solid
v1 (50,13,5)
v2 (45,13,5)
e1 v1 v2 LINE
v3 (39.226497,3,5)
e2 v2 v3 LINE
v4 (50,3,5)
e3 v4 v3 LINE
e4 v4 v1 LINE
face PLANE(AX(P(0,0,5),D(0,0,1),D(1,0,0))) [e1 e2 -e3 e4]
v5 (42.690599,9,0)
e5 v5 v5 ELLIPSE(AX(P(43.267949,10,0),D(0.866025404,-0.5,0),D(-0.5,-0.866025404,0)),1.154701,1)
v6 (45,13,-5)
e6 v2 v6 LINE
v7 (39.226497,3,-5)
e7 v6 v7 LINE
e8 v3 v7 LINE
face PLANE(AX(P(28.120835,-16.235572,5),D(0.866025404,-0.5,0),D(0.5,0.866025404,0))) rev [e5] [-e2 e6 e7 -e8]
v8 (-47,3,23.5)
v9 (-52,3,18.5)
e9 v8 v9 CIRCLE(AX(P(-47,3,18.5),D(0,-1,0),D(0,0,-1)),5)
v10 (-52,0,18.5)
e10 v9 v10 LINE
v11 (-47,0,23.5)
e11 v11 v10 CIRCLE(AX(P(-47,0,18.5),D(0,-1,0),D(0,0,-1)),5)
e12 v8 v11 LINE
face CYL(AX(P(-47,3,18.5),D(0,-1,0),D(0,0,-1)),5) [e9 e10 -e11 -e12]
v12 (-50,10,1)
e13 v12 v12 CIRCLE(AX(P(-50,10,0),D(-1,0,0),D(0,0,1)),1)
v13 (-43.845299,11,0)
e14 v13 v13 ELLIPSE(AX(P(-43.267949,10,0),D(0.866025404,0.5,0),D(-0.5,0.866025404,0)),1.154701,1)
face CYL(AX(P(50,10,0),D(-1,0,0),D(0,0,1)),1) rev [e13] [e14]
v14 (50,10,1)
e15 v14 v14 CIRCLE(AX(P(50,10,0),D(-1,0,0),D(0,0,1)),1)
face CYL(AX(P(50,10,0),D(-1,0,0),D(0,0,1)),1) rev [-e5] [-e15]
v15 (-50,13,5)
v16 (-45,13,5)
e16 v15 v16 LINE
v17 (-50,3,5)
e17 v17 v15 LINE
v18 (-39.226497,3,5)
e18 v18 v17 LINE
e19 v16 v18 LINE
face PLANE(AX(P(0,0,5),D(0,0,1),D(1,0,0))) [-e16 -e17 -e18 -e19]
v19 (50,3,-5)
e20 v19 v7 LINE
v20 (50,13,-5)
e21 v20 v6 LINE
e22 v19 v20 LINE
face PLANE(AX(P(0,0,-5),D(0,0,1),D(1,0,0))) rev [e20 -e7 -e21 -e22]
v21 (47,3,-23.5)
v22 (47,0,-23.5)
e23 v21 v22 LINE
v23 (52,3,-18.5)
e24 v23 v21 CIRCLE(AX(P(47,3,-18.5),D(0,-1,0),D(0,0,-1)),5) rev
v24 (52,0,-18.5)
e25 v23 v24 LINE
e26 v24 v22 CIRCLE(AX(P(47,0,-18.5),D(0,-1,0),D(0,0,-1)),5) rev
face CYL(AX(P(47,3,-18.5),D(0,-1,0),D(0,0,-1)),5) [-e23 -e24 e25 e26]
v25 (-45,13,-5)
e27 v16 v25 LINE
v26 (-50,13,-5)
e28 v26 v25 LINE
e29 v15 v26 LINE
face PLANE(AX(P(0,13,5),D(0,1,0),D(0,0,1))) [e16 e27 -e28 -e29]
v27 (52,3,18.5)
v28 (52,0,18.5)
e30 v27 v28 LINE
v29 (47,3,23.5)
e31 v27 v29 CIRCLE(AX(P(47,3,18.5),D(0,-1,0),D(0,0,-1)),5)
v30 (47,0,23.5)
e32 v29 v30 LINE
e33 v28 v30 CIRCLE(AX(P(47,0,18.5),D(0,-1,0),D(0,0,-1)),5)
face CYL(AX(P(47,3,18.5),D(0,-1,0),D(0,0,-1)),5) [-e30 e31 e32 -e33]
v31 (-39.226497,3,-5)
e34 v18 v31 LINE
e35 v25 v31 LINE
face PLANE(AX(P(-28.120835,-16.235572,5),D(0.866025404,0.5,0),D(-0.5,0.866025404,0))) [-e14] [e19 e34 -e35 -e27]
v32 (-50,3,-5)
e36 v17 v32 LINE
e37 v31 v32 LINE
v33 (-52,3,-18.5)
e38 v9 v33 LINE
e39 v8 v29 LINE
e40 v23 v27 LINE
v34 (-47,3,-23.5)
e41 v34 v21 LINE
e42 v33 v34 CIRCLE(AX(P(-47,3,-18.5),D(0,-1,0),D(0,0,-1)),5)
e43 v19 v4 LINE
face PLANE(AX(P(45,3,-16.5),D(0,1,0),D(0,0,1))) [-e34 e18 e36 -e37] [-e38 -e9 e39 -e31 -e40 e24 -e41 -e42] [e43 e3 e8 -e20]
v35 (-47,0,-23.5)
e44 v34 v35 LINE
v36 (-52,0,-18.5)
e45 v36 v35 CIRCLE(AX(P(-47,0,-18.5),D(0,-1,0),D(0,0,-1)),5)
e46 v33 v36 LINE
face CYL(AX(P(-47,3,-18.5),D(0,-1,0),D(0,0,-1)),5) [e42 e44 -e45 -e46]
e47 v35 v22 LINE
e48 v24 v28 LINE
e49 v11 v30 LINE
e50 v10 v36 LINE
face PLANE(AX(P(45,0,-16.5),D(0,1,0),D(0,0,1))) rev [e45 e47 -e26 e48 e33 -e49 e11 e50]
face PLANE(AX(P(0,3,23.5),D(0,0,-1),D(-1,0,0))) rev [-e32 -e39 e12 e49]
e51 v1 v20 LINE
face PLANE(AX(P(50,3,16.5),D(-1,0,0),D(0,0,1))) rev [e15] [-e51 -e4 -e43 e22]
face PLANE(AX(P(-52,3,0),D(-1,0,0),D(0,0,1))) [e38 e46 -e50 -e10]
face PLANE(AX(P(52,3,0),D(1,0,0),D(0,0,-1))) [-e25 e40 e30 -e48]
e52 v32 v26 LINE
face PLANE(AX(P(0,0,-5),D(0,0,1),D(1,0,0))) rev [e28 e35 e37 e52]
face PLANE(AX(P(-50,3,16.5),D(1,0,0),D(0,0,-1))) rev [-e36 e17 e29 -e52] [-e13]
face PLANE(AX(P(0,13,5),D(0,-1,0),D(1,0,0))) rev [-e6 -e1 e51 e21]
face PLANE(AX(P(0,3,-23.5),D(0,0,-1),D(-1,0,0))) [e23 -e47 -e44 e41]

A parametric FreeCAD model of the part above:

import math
import FreeCAD as App
import Part
import Sketcher
Q = App.Units.Quantity

doc = App.newDocument("Part")
params = doc.addObject("Spreadsheet::Sheet", "Params")
for row, (alias, value) in enumerate([
    ("sketch1_radius", "5 mm"),
    ("sketch1_width", "90 mm"),
    ("sketch1_height", "33 mm"),
    ("pad1_length", "3 mm"),
    ("sketch2_width", "5 mm"),
    ("sketch2_height", "10 mm"),
    ("pad2_length", "10 mm"),
    ("sketch3_diameter", "2 mm"),
    ("sketch4_radius", "5 mm"),
    ("sketch4_width", "94 mm"),
    ("sketch4_width2", "90 mm"),
    ("sketch4_height", "37 mm"),
    ("sketch4_height2", "33 mm"),
    ("pad3_length", "3 mm"),
], start=1):
    params.set(f"A{row}", alias)
    params.set(f"B{row}", "=" + value)
    params.setAlias(f"B{row}", alias)

body = doc.addObject("PartDesign::Body", "Body")

# Sketch on XZ plane
sketch1 = doc.addObject("Sketcher::SketchObject", "Sketch")
body.addObject(sketch1)
sketch1.AttachmentSupport = (doc.XZ_Plane, [""])
sketch1.MapMode = "FlatFace"
sketch1.addGeometry([
    Part.LineSegment(App.Vector(-45, 22, 0), App.Vector(45, 22, 0)),  # 0
    Part.ArcOfCircle(Part.Circle(App.Vector(45, 16, 0), App.Vector(0, 0, 1), 5), math.radians(0), math.radians(90)),  # 1
    Part.LineSegment(App.Vector(50, 16, 0), App.Vector(50, -16, 0)),  # 2
    Part.ArcOfCircle(Part.Circle(App.Vector(45, -16, 0), App.Vector(0, 0, 1), 5), math.radians(-90), math.radians(0)),  # 3
    Part.LineSegment(App.Vector(45, -22, 0), App.Vector(-45, -22, 0)),  # 4
    Part.ArcOfCircle(Part.Circle(App.Vector(-45, -16, 0), App.Vector(0, 0, 1), 5), math.radians(180), math.radians(270)),  # 5
    Part.LineSegment(App.Vector(-50, -16, 0), App.Vector(-50, 16, 0)),  # 6
    Part.ArcOfCircle(Part.Circle(App.Vector(-45, 16, 0), App.Vector(0, 0, 1), 5), math.radians(90), math.radians(180)),  # 7
], False)
sketch1.addConstraint([
    Sketcher.Constraint("Tangent", 0, 2, 1, 2),
    Sketcher.Constraint("Tangent", 1, 1, 2, 1),
    Sketcher.Constraint("Tangent", 2, 2, 3, 2),
    Sketcher.Constraint("Tangent", 3, 1, 4, 1),
    Sketcher.Constraint("Tangent", 4, 2, 5, 2),
    Sketcher.Constraint("Tangent", 5, 1, 6, 1),
    Sketcher.Constraint("Tangent", 6, 2, 7, 2),
    Sketcher.Constraint("Tangent", 7, 1, 0, 1),
    Sketcher.Constraint("Horizontal", 0),
    Sketcher.Constraint("Vertical", 2),
    Sketcher.Constraint("Horizontal", 4),
    Sketcher.Constraint("Vertical", 6),
    Sketcher.Constraint("Equal", 1, 3),
    Sketcher.Constraint("Equal", 3, 5),
    Sketcher.Constraint("Equal", 5, 7),
    Sketcher.Constraint("Symmetric", 1, 3, 5, 3, -1, 1),
    Sketcher.Constraint("Radius", 1, Q("5 mm")),
    Sketcher.Constraint("DistanceX", 0, 1, 0, 2, Q("90 mm")),
    Sketcher.Constraint("DistanceY", 2, 2, 2, 1, Q("33 mm")),
])
sketch1.setExpression("Constraints[16]", "Params.sketch1_radius")
sketch1.setExpression("Constraints[17]", "Params.sketch1_width")
sketch1.setExpression("Constraints[18]", "Params.sketch1_height")
pad1 = doc.addObject("PartDesign::Pad", "Pad")
body.addObject(pad1)
pad1.Profile = sketch1
pad1.setExpression("Length", "Params.pad1_length")
pad1.Reversed = True

# Sketch on XY plane
sketch2 = doc.addObject("Sketcher::SketchObject", "Sketch001")
body.addObject(sketch2)
sketch2.AttachmentSupport = (doc.XY_Plane, [""])
sketch2.MapMode = "FlatFace"
sketch2.addGeometry([
    Part.LineSegment(App.Vector(-50, 3, 0), App.Vector(-39, 3, 0)),  # 0
    Part.LineSegment(App.Vector(-39, 3, 0), App.Vector(-45, 13, 0)),  # 1
    Part.LineSegment(App.Vector(-45, 13, 0), App.Vector(-50, 13, 0)),  # 2
    Part.LineSegment(App.Vector(-50, 13, 0), App.Vector(-50, 3, 0)),  # 3
    Part.LineSegment(App.Vector(39, 3, 0), App.Vector(50, 3, 0)),  # 4
    Part.LineSegment(App.Vector(50, 3, 0), App.Vector(50, 13, 0)),  # 5
    Part.LineSegment(App.Vector(50, 13, 0), App.Vector(45, 13, 0)),  # 6
    Part.LineSegment(App.Vector(45, 13, 0), App.Vector(39, 3, 0)),  # 7
], False)
sketch2.addConstraint([
    Sketcher.Constraint("Coincident", 0, 2, 1, 1),
    Sketcher.Constraint("Coincident", 1, 2, 2, 1),
    Sketcher.Constraint("Coincident", 2, 2, 3, 1),
    Sketcher.Constraint("Coincident", 3, 2, 0, 1),
    Sketcher.Constraint("Coincident", 4, 2, 5, 1),
    Sketcher.Constraint("Coincident", 5, 2, 6, 1),
    Sketcher.Constraint("Coincident", 6, 2, 7, 1),
    Sketcher.Constraint("Coincident", 7, 2, 4, 1),
    Sketcher.Constraint("Horizontal", 0),
    Sketcher.Constraint("Horizontal", 2),
    Sketcher.Constraint("Vertical", 3),
    Sketcher.Constraint("Horizontal", 4),
    Sketcher.Constraint("Vertical", 5),
    Sketcher.Constraint("Horizontal", 6),
    Sketcher.Constraint("Symmetric", 3, 2, 4, 2, -2),
    Sketcher.Constraint("Symmetric", 1, 2, 6, 2, -2),
    Sketcher.Constraint("Equal", 0, 4),
    Sketcher.Constraint("DistanceX", 2, 2, 2, 1, Q("5 mm")),
    Sketcher.Constraint("DistanceY", 3, 2, 3, 1, Q("10 mm")),
    Sketcher.Constraint("Angle", 1, Q("120 deg")),
    Sketcher.Constraint("DistanceY", -1, 1, 0, 2, Q("3 mm")),
    Sketcher.Constraint("DistanceX", 1, 2, -1, 1, Q("45 mm")),
])
sketch2.setExpression("Constraints[17]", "Params.sketch2_width")
sketch2.setExpression("Constraints[18]", "Params.sketch2_height")
pad2 = doc.addObject("PartDesign::Pad", "Pad001")
body.addObject(pad2)
pad2.Profile = sketch2
pad2.setExpression("Length", "Params.pad2_length")
pad2.Midplane = True

# Sketch on YZ plane
sketch3 = doc.addObject("Sketcher::SketchObject", "Sketch002")
body.addObject(sketch3)
sketch3.AttachmentSupport = (doc.YZ_Plane, [""])
sketch3.MapMode = "FlatFace"
sketch3.AttachmentOffset = App.Placement(App.Vector(0, 0, -50), App.Rotation())
sketch3.addGeometry(Part.Circle(App.Vector(10, 0, 0), App.Vector(0, 0, 1), 1), False)
sketch3.addConstraint([
    Sketcher.Constraint("PointOnObject", 0, 3, -1),
    Sketcher.Constraint("Diameter", 0, Q("2 mm")),
    Sketcher.Constraint("DistanceX", -1, 1, 0, 3, Q("10 mm")),
])
sketch3.setExpression("Constraints[1]", "Params.sketch3_diameter")
pocket1 = doc.addObject("PartDesign::Pocket", "Pocket")
body.addObject(pocket1)
pocket1.Profile = sketch3
pocket1.Type = "ThroughAll"
pocket1.Reversed = True

# Sketch on XZ plane
sketch4 = doc.addObject("Sketcher::SketchObject", "Sketch003")
body.addObject(sketch4)
sketch4.AttachmentSupport = (doc.XZ_Plane, [""])
sketch4.MapMode = "FlatFace"
sketch4.addGeometry([
    Part.LineSegment(App.Vector(52, -18, 0), App.Vector(52, 18, 0)),  # 0
    Part.ArcOfCircle(Part.Circle(App.Vector(47, 18, 0), App.Vector(0, 0, 1), 5), math.radians(0), math.radians(90)),  # 1
    Part.LineSegment(App.Vector(47, 24, 0), App.Vector(-47, 24, 0)),  # 2
    Part.ArcOfCircle(Part.Circle(App.Vector(-47, 18, 0), App.Vector(0, 0, 1), 5), math.radians(90), math.radians(180)),  # 3
    Part.LineSegment(App.Vector(-52, 18, 0), App.Vector(-52, -18, 0)),  # 4
    Part.ArcOfCircle(Part.Circle(App.Vector(-47, -18, 0), App.Vector(0, 0, 1), 5), math.radians(180), math.radians(270)),  # 5
    Part.LineSegment(App.Vector(-47, -24, 0), App.Vector(47, -24, 0)),  # 6
    Part.ArcOfCircle(Part.Circle(App.Vector(47, -18, 0), App.Vector(0, 0, 1), 5), math.radians(-90), math.radians(0)),  # 7
    Part.ArcOfCircle(Part.Circle(App.Vector(45, 16, 0), App.Vector(0, 0, 1), 5), math.radians(0), math.radians(90)),  # 8
    Part.LineSegment(App.Vector(50, 16, 0), App.Vector(50, -16, 0)),  # 9
    Part.ArcOfCircle(Part.Circle(App.Vector(45, -16, 0), App.Vector(0, 0, 1), 5), math.radians(-90), math.radians(0)),  # 10
    Part.LineSegment(App.Vector(45, -22, 0), App.Vector(-45, -22, 0)),  # 11
    Part.ArcOfCircle(Part.Circle(App.Vector(-45, -16, 0), App.Vector(0, 0, 1), 5), math.radians(180), math.radians(270)),  # 12
    Part.LineSegment(App.Vector(-50, -16, 0), App.Vector(-50, 16, 0)),  # 13
    Part.ArcOfCircle(Part.Circle(App.Vector(-45, 16, 0), App.Vector(0, 0, 1), 5), math.radians(90), math.radians(180)),  # 14
    Part.LineSegment(App.Vector(-45, 22, 0), App.Vector(45, 22, 0)),  # 15
], False)
sketch4.addConstraint([
    Sketcher.Constraint("Tangent", 0, 2, 1, 1),
    Sketcher.Constraint("Tangent", 1, 2, 2, 1),
    Sketcher.Constraint("Tangent", 2, 2, 3, 1),
    Sketcher.Constraint("Tangent", 3, 2, 4, 1),
    Sketcher.Constraint("Tangent", 4, 2, 5, 1),
    Sketcher.Constraint("Tangent", 5, 2, 6, 1),
    Sketcher.Constraint("Tangent", 6, 2, 7, 1),
    Sketcher.Constraint("Tangent", 7, 2, 0, 1),
    Sketcher.Constraint("Tangent", 8, 1, 9, 1),
    Sketcher.Constraint("Tangent", 9, 2, 10, 2),
    Sketcher.Constraint("Tangent", 10, 1, 11, 1),
    Sketcher.Constraint("Tangent", 11, 2, 12, 2),
    Sketcher.Constraint("Tangent", 12, 1, 13, 1),
    Sketcher.Constraint("Tangent", 13, 2, 14, 2),
    Sketcher.Constraint("Tangent", 14, 1, 15, 1),
    Sketcher.Constraint("Tangent", 15, 2, 8, 2),
    Sketcher.Constraint("Vertical", 0),
    Sketcher.Constraint("Horizontal", 2),
    Sketcher.Constraint("Vertical", 4),
    Sketcher.Constraint("Horizontal", 6),
    Sketcher.Constraint("Vertical", 9),
    Sketcher.Constraint("Horizontal", 11),
    Sketcher.Constraint("Vertical", 13),
    Sketcher.Constraint("Horizontal", 15),
    Sketcher.Constraint("Equal", 1, 3),
    Sketcher.Constraint("Equal", 3, 5),
    Sketcher.Constraint("Equal", 5, 7),
    Sketcher.Constraint("Equal", 7, 8),
    Sketcher.Constraint("Equal", 8, 10),
    Sketcher.Constraint("Equal", 10, 12),
    Sketcher.Constraint("Equal", 12, 14),
    Sketcher.Constraint("Symmetric", 1, 3, 5, 3, -1, 1),
    Sketcher.Constraint("Symmetric", 8, 3, 12, 3, -1, 1),
    Sketcher.Constraint("Radius", 1, Q("5 mm")),
    Sketcher.Constraint("DistanceX", 2, 2, 2, 1, Q("94 mm")),
    Sketcher.Constraint("DistanceX", 11, 2, 11, 1, Q("90 mm")),
    Sketcher.Constraint("DistanceY", 0, 1, 0, 2, Q("37 mm")),
    Sketcher.Constraint("DistanceY", 9, 2, 9, 1, Q("33 mm")),
])
sketch4.setExpression("Constraints[33]", "Params.sketch4_radius")
sketch4.setExpression("Constraints[34]", "Params.sketch4_width")
sketch4.setExpression("Constraints[35]", "Params.sketch4_width2")
sketch4.setExpression("Constraints[36]", "Params.sketch4_height")
sketch4.setExpression("Constraints[37]", "Params.sketch4_height2")
pad3 = doc.addObject("PartDesign::Pad", "Pad002")
body.addObject(pad3)
pad3.Profile = sketch4
pad3.setExpression("Length", "Params.pad3_length")
pad3.Reversed = True

doc.recompute()
